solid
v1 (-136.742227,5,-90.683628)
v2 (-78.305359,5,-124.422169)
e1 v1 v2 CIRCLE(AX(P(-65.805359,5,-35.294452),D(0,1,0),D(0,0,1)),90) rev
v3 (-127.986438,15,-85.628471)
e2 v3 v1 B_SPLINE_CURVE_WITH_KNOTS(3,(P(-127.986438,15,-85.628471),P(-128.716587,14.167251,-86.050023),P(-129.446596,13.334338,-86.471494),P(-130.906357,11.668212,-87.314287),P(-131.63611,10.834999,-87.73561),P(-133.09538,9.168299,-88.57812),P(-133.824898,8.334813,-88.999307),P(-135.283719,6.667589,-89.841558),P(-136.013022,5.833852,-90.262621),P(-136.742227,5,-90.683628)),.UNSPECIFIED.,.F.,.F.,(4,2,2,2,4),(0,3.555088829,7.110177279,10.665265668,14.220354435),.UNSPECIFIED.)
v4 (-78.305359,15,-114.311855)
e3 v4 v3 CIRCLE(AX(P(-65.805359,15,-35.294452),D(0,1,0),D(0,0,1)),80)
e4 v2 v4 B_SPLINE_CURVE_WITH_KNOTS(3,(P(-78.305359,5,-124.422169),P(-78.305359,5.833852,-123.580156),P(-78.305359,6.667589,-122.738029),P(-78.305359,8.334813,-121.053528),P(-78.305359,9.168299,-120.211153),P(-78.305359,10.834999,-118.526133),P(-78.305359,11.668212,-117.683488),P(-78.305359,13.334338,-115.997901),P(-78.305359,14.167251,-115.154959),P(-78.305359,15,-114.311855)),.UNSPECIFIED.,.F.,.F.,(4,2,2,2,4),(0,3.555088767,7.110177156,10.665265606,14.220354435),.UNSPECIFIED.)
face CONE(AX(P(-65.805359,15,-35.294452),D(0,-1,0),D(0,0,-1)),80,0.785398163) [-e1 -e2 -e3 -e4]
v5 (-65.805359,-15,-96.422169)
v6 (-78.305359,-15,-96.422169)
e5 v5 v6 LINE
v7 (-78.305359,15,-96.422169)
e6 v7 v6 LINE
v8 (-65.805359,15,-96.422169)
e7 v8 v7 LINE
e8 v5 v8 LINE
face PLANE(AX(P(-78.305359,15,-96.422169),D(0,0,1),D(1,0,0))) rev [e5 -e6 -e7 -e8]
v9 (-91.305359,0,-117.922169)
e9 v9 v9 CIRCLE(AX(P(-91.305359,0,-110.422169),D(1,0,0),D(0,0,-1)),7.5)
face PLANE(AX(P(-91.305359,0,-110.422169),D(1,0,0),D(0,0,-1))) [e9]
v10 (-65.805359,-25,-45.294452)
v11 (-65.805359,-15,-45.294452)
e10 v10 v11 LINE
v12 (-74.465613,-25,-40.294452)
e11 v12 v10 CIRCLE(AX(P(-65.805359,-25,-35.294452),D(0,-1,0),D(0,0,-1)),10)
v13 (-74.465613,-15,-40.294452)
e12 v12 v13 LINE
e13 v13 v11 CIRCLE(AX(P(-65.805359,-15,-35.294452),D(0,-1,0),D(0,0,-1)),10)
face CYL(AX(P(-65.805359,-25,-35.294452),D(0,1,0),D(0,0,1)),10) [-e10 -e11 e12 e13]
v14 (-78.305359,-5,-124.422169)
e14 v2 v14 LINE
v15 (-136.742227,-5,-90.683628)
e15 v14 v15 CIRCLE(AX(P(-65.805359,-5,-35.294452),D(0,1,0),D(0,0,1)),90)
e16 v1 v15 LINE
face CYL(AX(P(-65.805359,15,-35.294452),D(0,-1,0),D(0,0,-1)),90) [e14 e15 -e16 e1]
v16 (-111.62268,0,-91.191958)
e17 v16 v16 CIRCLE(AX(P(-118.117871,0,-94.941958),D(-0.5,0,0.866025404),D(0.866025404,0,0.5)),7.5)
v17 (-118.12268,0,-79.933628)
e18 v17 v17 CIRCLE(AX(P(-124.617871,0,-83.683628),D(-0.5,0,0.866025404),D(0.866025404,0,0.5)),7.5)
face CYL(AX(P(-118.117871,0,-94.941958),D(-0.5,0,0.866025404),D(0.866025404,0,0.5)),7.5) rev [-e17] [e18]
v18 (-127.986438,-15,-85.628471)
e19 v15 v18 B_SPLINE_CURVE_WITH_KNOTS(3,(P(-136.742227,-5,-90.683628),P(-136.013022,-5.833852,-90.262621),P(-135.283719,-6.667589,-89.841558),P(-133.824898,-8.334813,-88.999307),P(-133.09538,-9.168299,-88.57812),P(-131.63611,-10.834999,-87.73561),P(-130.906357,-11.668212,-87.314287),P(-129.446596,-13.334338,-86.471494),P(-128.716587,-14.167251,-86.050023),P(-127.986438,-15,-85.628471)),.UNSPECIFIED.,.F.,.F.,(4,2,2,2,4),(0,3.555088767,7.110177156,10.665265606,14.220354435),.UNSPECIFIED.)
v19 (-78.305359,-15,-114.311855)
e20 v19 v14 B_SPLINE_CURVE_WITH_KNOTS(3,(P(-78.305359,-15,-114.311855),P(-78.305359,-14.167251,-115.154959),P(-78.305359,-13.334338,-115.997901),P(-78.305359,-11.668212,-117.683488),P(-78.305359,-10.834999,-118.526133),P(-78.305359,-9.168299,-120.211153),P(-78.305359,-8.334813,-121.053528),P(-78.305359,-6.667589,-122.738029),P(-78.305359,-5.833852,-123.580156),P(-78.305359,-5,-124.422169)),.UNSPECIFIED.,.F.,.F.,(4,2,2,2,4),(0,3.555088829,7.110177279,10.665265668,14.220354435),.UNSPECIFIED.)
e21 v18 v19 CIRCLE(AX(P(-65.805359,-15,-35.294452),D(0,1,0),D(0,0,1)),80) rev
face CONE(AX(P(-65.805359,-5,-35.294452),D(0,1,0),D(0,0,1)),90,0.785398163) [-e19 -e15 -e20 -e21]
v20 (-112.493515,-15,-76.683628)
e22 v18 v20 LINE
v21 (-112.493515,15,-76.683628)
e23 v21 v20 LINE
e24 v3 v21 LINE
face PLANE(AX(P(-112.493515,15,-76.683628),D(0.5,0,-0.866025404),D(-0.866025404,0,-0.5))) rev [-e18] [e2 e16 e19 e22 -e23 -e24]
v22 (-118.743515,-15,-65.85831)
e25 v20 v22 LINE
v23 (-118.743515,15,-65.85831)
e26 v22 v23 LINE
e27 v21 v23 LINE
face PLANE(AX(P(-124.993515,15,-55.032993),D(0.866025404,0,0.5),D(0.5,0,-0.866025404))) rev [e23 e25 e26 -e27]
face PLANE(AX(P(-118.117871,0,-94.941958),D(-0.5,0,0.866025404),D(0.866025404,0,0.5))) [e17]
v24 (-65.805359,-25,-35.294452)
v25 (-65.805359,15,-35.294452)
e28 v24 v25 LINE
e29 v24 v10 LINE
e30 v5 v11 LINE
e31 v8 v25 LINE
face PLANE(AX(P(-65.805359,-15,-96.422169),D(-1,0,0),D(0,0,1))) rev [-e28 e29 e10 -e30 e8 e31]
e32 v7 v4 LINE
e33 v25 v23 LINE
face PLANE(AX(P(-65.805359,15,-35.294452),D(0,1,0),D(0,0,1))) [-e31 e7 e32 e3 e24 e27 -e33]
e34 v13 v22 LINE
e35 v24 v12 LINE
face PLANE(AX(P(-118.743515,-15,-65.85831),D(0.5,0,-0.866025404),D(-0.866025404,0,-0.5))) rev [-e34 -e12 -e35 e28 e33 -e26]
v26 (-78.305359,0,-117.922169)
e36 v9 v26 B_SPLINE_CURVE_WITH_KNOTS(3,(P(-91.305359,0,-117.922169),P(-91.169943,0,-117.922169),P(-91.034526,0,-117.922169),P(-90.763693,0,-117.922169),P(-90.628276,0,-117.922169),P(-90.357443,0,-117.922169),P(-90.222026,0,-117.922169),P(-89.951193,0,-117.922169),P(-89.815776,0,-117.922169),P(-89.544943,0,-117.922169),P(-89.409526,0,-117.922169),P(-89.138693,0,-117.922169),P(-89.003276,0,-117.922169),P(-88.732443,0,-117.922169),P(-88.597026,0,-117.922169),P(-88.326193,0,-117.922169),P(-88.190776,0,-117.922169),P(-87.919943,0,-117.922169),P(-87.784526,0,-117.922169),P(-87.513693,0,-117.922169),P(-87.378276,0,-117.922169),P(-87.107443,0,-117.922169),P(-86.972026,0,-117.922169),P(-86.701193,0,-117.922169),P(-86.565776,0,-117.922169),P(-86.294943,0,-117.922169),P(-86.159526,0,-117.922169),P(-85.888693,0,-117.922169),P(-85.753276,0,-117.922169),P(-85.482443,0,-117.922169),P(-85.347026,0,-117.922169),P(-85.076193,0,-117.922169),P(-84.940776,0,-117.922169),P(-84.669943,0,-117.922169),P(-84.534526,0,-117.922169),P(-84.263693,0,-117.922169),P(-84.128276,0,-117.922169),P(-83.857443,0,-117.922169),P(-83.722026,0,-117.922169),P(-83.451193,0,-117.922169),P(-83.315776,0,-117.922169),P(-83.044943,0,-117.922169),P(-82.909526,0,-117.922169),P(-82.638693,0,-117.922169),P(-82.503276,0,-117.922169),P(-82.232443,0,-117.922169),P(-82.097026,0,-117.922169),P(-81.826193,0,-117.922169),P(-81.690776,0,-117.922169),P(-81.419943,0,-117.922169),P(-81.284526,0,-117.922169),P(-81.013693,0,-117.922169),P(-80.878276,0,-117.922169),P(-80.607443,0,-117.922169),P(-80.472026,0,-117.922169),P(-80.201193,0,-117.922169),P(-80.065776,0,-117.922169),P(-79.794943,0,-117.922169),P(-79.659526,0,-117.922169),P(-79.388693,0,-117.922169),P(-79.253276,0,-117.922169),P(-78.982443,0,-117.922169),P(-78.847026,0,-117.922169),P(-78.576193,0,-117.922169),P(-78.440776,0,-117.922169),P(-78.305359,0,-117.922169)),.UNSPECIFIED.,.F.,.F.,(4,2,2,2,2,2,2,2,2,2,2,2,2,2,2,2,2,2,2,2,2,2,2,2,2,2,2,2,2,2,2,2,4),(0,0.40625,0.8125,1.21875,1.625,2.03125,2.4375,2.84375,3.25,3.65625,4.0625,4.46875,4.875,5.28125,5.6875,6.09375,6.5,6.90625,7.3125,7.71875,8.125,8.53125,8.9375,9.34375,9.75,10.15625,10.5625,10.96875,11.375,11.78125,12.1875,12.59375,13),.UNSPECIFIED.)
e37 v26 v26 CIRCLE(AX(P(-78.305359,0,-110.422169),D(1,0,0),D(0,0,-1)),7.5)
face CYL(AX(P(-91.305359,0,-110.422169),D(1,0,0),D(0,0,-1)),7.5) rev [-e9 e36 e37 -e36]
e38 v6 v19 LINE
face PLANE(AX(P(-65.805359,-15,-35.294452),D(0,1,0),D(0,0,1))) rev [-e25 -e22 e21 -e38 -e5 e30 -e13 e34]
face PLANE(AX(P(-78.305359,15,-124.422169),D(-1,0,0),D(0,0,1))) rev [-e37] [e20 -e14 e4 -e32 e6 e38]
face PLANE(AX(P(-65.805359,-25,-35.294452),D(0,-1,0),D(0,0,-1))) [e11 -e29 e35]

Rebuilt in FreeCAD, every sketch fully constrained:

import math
import FreeCAD as App
import Part
import Sketcher
Q = App.Units.Quantity


def edges_at(feature, points):
    """Names of the edges that pass closest to the given points."""
    edges = feature.Shape.Edges
    near = lambda p: min(range(len(edges)), key=lambda i: edges[i].distToShape(Part.Vertex(*p))[0])
    return sorted({f"Edge{near(p) + 1}" for p in points})

doc = App.newDocument("Part")
body = doc.addObject("PartDesign::Body", "Body")

# Sketch on XZ plane
sketch1 = body.newObject("Sketcher::SketchObject", "Sketch")
sketch1.AttachmentSupport = (doc.getObject("XZ_Plane"), [""])
sketch1.MapMode = "FlatFace"
sketch1.addGeometry(Part.LineSegment(App.Vector(-112, 6, 0), App.Vector(-137, 20, 0)), False)
sketch1.addGeometry(Part.ArcOfCircle(Part.Circle(App.Vector(-66, -35, 0), App.Vector(0, 0, 1), 90), math.radians(98), math.radians(142)), False)
sketch1.addGeometry(Part.LineSegment(App.Vector(-78, 54, 0), App.Vector(-78, 26, 0)), False)
sketch1.addGeometry(Part.LineSegment(App.Vector(-78, 26, 0), App.Vector(-53, 26, 0)), False)
sketch1.addGeometry(Part.LineSegment(App.Vector(-53, 26, 0), App.Vector(-53, 54, 0)), False)
sketch1.addGeometry(Part.ArcOfCircle(Part.Circle(App.Vector(-66, -35, 0), App.Vector(0, 0, 1), 90), math.radians(38), math.radians(82)), False)
sketch1.addGeometry(Part.LineSegment(App.Vector(5, 20, 0), App.Vector(-19, 6, 0)), False)
sketch1.addGeometry(Part.LineSegment(App.Vector(-19, 6, 0), App.Vector(-13, -5, 0)), False)
sketch1.addGeometry(Part.LineSegment(App.Vector(-13, -5, 0), App.Vector(-7, -16, 0)), False)
sketch1.addGeometry(Part.LineSegment(App.Vector(-7, -16, 0), App.Vector(18, -2, 0)), False)
sketch1.addGeometry(Part.ArcOfCircle(Part.Circle(App.Vector(-66, -35, 0), App.Vector(0, 0, 1), 90), math.radians(-22), math.radians(22)), False)
sketch1.addGeometry(Part.LineSegment(App.Vector(18, -69, 0), App.Vector(-7, -55, 0)), False)
sketch1.addGeometry(Part.LineSegment(App.Vector(-7, -55, 0), App.Vector(-19, -77, 0)), False)
sketch1.addGeometry(Part.LineSegment(App.Vector(-19, -77, 0), App.Vector(5, -91, 0)), False)
sketch1.addGeometry(Part.ArcOfCircle(Part.Circle(App.Vector(-66, -35, 0), App.Vector(0, 0, 1), 90), math.radians(-82), math.radians(-38)), False)
sketch1.addGeometry(Part.LineSegment(App.Vector(-53, -124, 0), App.Vector(-53, -96, 0)), False)
sketch1.addGeometry(Part.LineSegment(App.Vector(-53, -96, 0), App.Vector(-78, -96, 0)), False)
sketch1.addGeometry(Part.LineSegment(App.Vector(-78, -96, 0), App.Vector(-78, -124, 0)), False)
sketch1.addGeometry(Part.ArcOfCircle(Part.Circle(App.Vector(-66, -35, 0), App.Vector(0, 0, 1), 90), math.radians(-142), math.radians(-98)), False)
sketch1.addGeometry(Part.LineSegment(App.Vector(-137, -91, 0), App.Vector(-112, -77, 0)), False)
sketch1.addGeometry(Part.LineSegment(App.Vector(-112, -77, 0), App.Vector(-119, -66, 0)), False)
sketch1.addGeometry(Part.LineSegment(App.Vector(-119, -66, 0), App.Vector(-125, -55, 0)), False)
sketch1.addGeometry(Part.LineSegment(App.Vector(-125, -55, 0), App.Vector(-149, -69, 0)), False)
sketch1.addGeometry(Part.ArcOfCircle(Part.Circle(App.Vector(-66, -35, 0), App.Vector(0, 0, 1), 90), math.radians(158), math.radians(202)), False)
sketch1.addGeometry(Part.LineSegment(App.Vector(-149, -2, 0), App.Vector(-125, -16, 0)), False)
sketch1.addGeometry(Part.LineSegment(App.Vector(-125, -16, 0), App.Vector(-119, -5, 0)), False)
sketch1.addGeometry(Part.LineSegment(App.Vector(-119, -5, 0), App.Vector(-112, 6, 0)), False)
sketch1.addConstraint(Sketcher.Constraint("Coincident", 0, 2, 1, 2))
sketch1.addConstraint(Sketcher.Constraint("Coincident", 1, 1, 2, 1))
sketch1.addConstraint(Sketcher.Constraint("Coincident", 2, 2, 3, 1))
sketch1.addConstraint(Sketcher.Constraint("Coincident", 3, 2, 4, 1))
sketch1.addConstraint(Sketcher.Constraint("Coincident", 4, 2, 5, 2))
sketch1.addConstraint(Sketcher.Constraint("Coincident", 5, 1, 6, 1))
sketch1.addConstraint(Sketcher.Constraint("Coincident", 6, 2, 7, 1))
sketch1.addConstraint(Sketcher.Constraint("Coincident", 7, 2, 8, 1))
sketch1.addConstraint(Sketcher.Constraint("Coincident", 8, 2, 9, 1))
sketch1.addConstraint(Sketcher.Constraint("Coincident", 9, 2, 10, 2))
sketch1.addConstraint(Sketcher.Constraint("Coincident", 10, 1, 11, 1))
sketch1.addConstraint(Sketcher.Constraint("Coincident", 11, 2, 12, 1))
sketch1.addConstraint(Sketcher.Constraint("Coincident", 12, 2, 13, 1))
sketch1.addConstraint(Sketcher.Constraint("Coincident", 13, 2, 14, 2))
sketch1.addConstraint(Sketcher.Constraint("Coincident", 14, 1, 15, 1))
sketch1.addConstraint(Sketcher.Constraint("Coincident", 15, 2, 16, 1))
sketch1.addConstraint(Sketcher.Constraint("Coincident", 16, 2, 17, 1))
sketch1.addConstraint(Sketcher.Constraint("Coincident", 17, 2, 18, 2))
sketch1.addConstraint(Sketcher.Constraint("Coincident", 18, 1, 19, 1))
sketch1.addConstraint(Sketcher.Constraint("Coincident", 19, 2, 20, 1))
sketch1.addConstraint(Sketcher.Constraint("Coincident", 20, 2, 21, 1))
sketch1.addConstraint(Sketcher.Constraint("Coincident", 21, 2, 22, 1))
sketch1.addConstraint(Sketcher.Constraint("Coincident", 22, 2, 23, 2))
sketch1.addConstraint(Sketcher.Constraint("Coincident", 23, 1, 24, 1))
sketch1.addConstraint(Sketcher.Constraint("Coincident", 24, 2, 25, 1))
sketch1.addConstraint(Sketcher.Constraint("Coincident", 25, 2, 26, 1))
sketch1.addConstraint(Sketcher.Constraint("Coincident", 26, 2, 0, 1))
sketch1.addConstraint(Sketcher.Constraint("Vertical", 2))
sketch1.addConstraint(Sketcher.Constraint("Horizontal", 3))
sketch1.addConstraint(Sketcher.Constraint("Vertical", 4))
sketch1.addConstraint(Sketcher.Constraint("Vertical", 15))
sketch1.addConstraint(Sketcher.Constraint("Horizontal", 16))
sketch1.addConstraint(Sketcher.Constraint("Vertical", 17))
sketch1.addConstraint(Sketcher.Constraint("Coincident", 5, 3, 1, 3))
sketch1.addConstraint(Sketcher.Constraint("Coincident", 10, 3, 1, 3))
sketch1.addConstraint(Sketcher.Constraint("Coincident", 14, 3, 1, 3))
sketch1.addConstraint(Sketcher.Constraint("Coincident", 18, 3, 1, 3))
sketch1.addConstraint(Sketcher.Constraint("Coincident", 23, 3, 1, 3))
sketch1.addConstraint(Sketcher.Constraint("Equal", 1, 5))
sketch1.addConstraint(Sketcher.Constraint("Equal", 5, 10))
sketch1.addConstraint(Sketcher.Constraint("Equal", 10, 14))
sketch1.addConstraint(Sketcher.Constraint("Equal", 14, 18))
sketch1.addConstraint(Sketcher.Constraint("Equal", 18, 23))
sketch1.addConstraint(Sketcher.Constraint("Perpendicular", 6, 7))
sketch1.addConstraint(Sketcher.Constraint("Parallel", 7, 8))
sketch1.addConstraint(Sketcher.Constraint("Perpendicular", 8, 9))
sketch1.addConstraint(Sketcher.Constraint("Parallel", 0, 11))
sketch1.addConstraint(Sketcher.Constraint("Perpendicular", 11, 12))
sketch1.addConstraint(Sketcher.Constraint("Perpendicular", 12, 13))
sketch1.addConstraint(Sketcher.Constraint("Parallel", 9, 19))
sketch1.addConstraint(Sketcher.Constraint("Perpendicular", 19, 20))
sketch1.addConstraint(Sketcher.Constraint("Parallel", 20, 21))
sketch1.addConstraint(Sketcher.Constraint("Perpendicular", 21, 22))
sketch1.addConstraint(Sketcher.Constraint("Parallel", 13, 24))
sketch1.addConstraint(Sketcher.Constraint("Perpendicular", 24, 25))
sketch1.addConstraint(Sketcher.Constraint("Parallel", 25, 26))
sketch1.addConstraint(Sketcher.Constraint("Horizontal", 1, 1, 4, 2))
sketch1.addConstraint(Sketcher.Constraint("Horizontal", 0, 2, 5, 1))
sketch1.addConstraint(Sketcher.Constraint("Horizontal", 14, 1, 17, 2))
sketch1.addConstraint(Sketcher.Constraint("Horizontal", 13, 2, 18, 1))
sketch1.addConstraint(Sketcher.Constraint("Horizontal", 12, 2, 19, 2))
sketch1.addConstraint(Sketcher.Constraint("Horizontal", 11, 2, 21, 2))
sketch1.addConstraint(Sketcher.Constraint("Horizontal", 9, 2, 23, 1))
sketch1.addConstraint(Sketcher.Constraint("Horizontal", 8, 2, 24, 2))
sketch1.addConstraint(Sketcher.Constraint("Horizontal", 7, 2, 25, 2))
sketch1.addConstraint(Sketcher.Constraint("Horizontal", 6, 2, 26, 2))
sketch1.addConstraint(Sketcher.Constraint("Vertical", 9, 2, 10, 1))
sketch1.addConstraint(Sketcher.Constraint("Vertical", 8, 2, 11, 2))
sketch1.addConstraint(Sketcher.Constraint("Vertical", 6, 2, 12, 2))
sketch1.addConstraint(Sketcher.Constraint("Vertical", 4, 2, 14, 1))
sketch1.addConstraint(Sketcher.Constraint("Vertical", 20, 2, 25, 2))
sketch1.addConstraint(Sketcher.Constraint("Equal", 4, 15))
sketch1.addConstraint(Sketcher.Constraint("Equal", 7, 8))
sketch1.addConstraint(Sketcher.Constraint("Equal", 6, 9))
sketch1.addConstraint(Sketcher.Constraint("Radius", 1, 90.0))
sketch1.addConstraint(Sketcher.Constraint("DistanceX", 3, 1, 3, 2, 25.0))
sketch1.addConstraint(Sketcher.Constraint("DistanceY", 2, 2, 2, 1, 28.0))
sketch1.addConstraint(Sketcher.Constraint("Angle", 0, Q("150 deg")))
sketch1.addConstraint(Sketcher.Constraint("Distance", 0, 28.0))
sketch1.addConstraint(Sketcher.Constraint("Distance", 12, 25.0))
sketch1.addConstraint(Sketcher.Constraint("DistanceX", 1, 3, -1, 1, 65.805359))
sketch1.addConstraint(Sketcher.Constraint("DistanceY", 1, 3, -1, 1, 35.294452))
pad1 = body.newObject("PartDesign::Pad", "Pad")
pad1.Profile = sketch1
pad1.Length = 30
pad1.Midplane = True

# Sketch on XZ plane
sketch2 = body.newObject("Sketcher::SketchObject", "Sketch001")
sketch2.AttachmentSupport = (doc.getObject("XZ_Plane"), [""])
sketch2.MapMode = "FlatFace"
sketch2.AttachmentOffset = App.Placement(App.Vector(0, 0, -15), App.Rotation())
sketch2.addGeometry(Part.LineSegment(App.Vector(-66, -96, 0), App.Vector(-66, -35, 0)), False)
sketch2.addGeometry(Part.LineSegment(App.Vector(-66, -35, 0), App.Vector(-119, -66, 0)), False)
sketch2.addGeometry(Part.LineSegment(App.Vector(-119, -66, 0), App.Vector(-112, -77, 0)), False)
sketch2.addGeometry(Part.LineSegment(App.Vector(-112, -77, 0), App.Vector(-137, -91, 0)), False)
sketch2.addGeometry(Part.ArcOfCircle(Part.Circle(App.Vector(-66, -35, 0), App.Vector(0, 0, 1), 90), math.radians(-98), math.radians(218)), False)
sketch2.addGeometry(Part.LineSegment(App.Vector(-78, -124, 0), App.Vector(-78, -96, 0)), False)
sketch2.addGeometry(Part.LineSegment(App.Vector(-78, -96, 0), App.Vector(-66, -96, 0)), False)
sketch2.addConstraint(Sketcher.Constraint("Coincident", 0, 2, 1, 1))
sketch2.addConstraint(Sketcher.Constraint("Coincident", 1, 2, 2, 1))
sketch2.addConstraint(Sketcher.Constraint("Coincident", 2, 2, 3, 1))
sketch2.addConstraint(Sketcher.Constraint("Coincident", 3, 2, 4, 2))
sketch2.addConstraint(Sketcher.Constraint("Coincident", 4, 1, 5, 1))
sketch2.addConstraint(Sketcher.Constraint("Coincident", 5, 2, 6, 1))
sketch2.addConstraint(Sketcher.Constraint("Coincident", 6, 2, 0, 1))
sketch2.addConstraint(Sketcher.Constraint("Vertical", 0))
sketch2.addConstraint(Sketcher.Constraint("Vertical", 5))
sketch2.addConstraint(Sketcher.Constraint("Horizontal", 6))
sketch2.addConstraint(Sketcher.Constraint("Coincident", 0, 2, 4, 3))
sketch2.addConstraint(Sketcher.Constraint("Perpendicular", 1, 2))
sketch2.addConstraint(Sketcher.Constraint("Perpendicular", 2, 3))
sketch2.addConstraint(Sketcher.Constraint("Radius", 4, 90.0))
sketch2.addConstraint(Sketcher.Constraint("DistanceY", 5, 1, 5, 2, 28.0))
sketch2.addConstraint(Sketcher.Constraint("Angle", 1, Q("-150 deg")))
sketch2.addConstraint(Sketcher.Constraint("Distance", 3, 28.0))
sketch2.addConstraint(Sketcher.Constraint("DistanceX", 6, 1, 6, 2, 12.5))
sketch2.addConstraint(Sketcher.Constraint("Distance", 2, 12.5))
sketch2.addConstraint(Sketcher.Constraint("DistanceX", 4, 3, -1, 1, 65.805359))
sketch2.addConstraint(Sketcher.Constraint("DistanceY", 4, 3, -1, 1, 35.294452))
pocket1 = body.newObject("PartDesign::Pocket", "Pocket")
pocket1.Profile = sketch2
pocket1.Length = 30
pocket1.Reversed = True

# Sketch on YZ plane
sketch3 = body.newObject("Sketcher::SketchObject", "Sketch002")
sketch3.AttachmentSupport = (doc.getObject("YZ_Plane"), [""])
sketch3.MapMode = "FlatFace"
sketch3.AttachmentOffset = App.Placement(App.Vector(0, 0, -78.305359), App.Rotation())
sketch3.addGeometry(Part.Circle(App.Vector(0, -110, 0), App.Vector(0, 0, 1), 8), False)
sketch3.addConstraint(Sketcher.Constraint("PointOnObject", 0, 3, -2))
sketch3.addConstraint(Sketcher.Constraint("Diameter", 0, 15.0))
sketch3.addConstraint(Sketcher.Constraint("DistanceY", 0, 3, -1, 1, 110.422169))
pocket2 = body.newObject("PartDesign::Pocket", "Pocket001")
pocket2.Profile = sketch3
pocket2.Length = 13

# Sketch on an angled plane
sketch4 = body.newObject("Sketcher::SketchObject", "Sketch003")
sketch4.Placement = App.Placement(App.Vector(5.081606, 0, -8.8016), App.Rotation(App.Vector(0.866025404, 0, 0.5), App.Vector(0, 1, 0), App.Vector(-0.5, 0, 0.866025404), "ZXY"))
sketch4.addGeometry(Part.Circle(App.Vector(-150, 0, 0), App.Vector(0, 0, 1), 8), False)
sketch4.addConstraint(Sketcher.Constraint("PointOnObject", 0, 3, -1))
sketch4.addConstraint(Sketcher.Constraint("Diameter", 0, 15.0))
sketch4.addConstraint(Sketcher.Constraint("DistanceX", 0, 3, -1, 1, 149.764056))
pocket3 = body.newObject("PartDesign::Pocket", "Pocket002")
pocket3.Profile = sketch4
pocket3.Length = 13

# Sketch on XZ plane
sketch5 = body.newObject("Sketcher::SketchObject", "Sketch004")
sketch5.AttachmentSupport = (doc.getObject("XZ_Plane"), [""])
sketch5.MapMode = "FlatFace"
sketch5.AttachmentOffset = App.Placement(App.Vector(0, 0, 15), App.Rotation())
sketch5.addGeometry(Part.LineSegment(App.Vector(-66, -35, 0), App.Vector(-74, -40, 0)), False)
sketch5.addGeometry(Part.ArcOfCircle(Part.Circle(App.Vector(-66, -35, 0), App.Vector(0, 0, 1), 10), math.radians(-150), math.radians(-90)), False)
sketch5.addGeometry(Part.LineSegment(App.Vector(-66, -45, 0), App.Vector(-66, -35, 0)), False)
sketch5.addConstraint(Sketcher.Constraint("Coincident", 0, 2, 1, 1))
sketch5.addConstraint(Sketcher.Constraint("Coincident", 1, 2, 2, 1))
sketch5.addConstraint(Sketcher.Constraint("Coincident", 2, 2, 0, 1))
sketch5.addConstraint(Sketcher.Constraint("Vertical", 2))
sketch5.addConstraint(Sketcher.Constraint("Coincident", 2, 2, 1, 3))
sketch5.addConstraint(Sketcher.Constraint("Radius", 1, 10.0))
sketch5.addConstraint(Sketcher.Constraint("Angle", 0, Q("-150 deg")))
sketch5.addConstraint(Sketcher.Constraint("DistanceX", 1, 3, -1, 1, 65.805359))
sketch5.addConstraint(Sketcher.Constraint("DistanceY", 1, 3, -1, 1, 35.294452))
pad2 = body.newObject("PartDesign::Pad", "Pad001")
pad2.Profile = sketch5
pad2.Length = 10
doc.recompute()

chamfer = body.newObject("PartDesign::Chamfer", "Chamfer")
chamfer.Base = (pad2, edges_at(pad2, [(-110.805, -15, -113.237)]))
chamfer.Size = 10
doc.recompute()

chamfer2 = body.newObject("PartDesign::Chamfer", "Chamfer001")
chamfer2.Base = (chamfer, edges_at(chamfer, [(-110.805, 15, -113.237)]))
chamfer2.Size = 10

doc.recompute()
